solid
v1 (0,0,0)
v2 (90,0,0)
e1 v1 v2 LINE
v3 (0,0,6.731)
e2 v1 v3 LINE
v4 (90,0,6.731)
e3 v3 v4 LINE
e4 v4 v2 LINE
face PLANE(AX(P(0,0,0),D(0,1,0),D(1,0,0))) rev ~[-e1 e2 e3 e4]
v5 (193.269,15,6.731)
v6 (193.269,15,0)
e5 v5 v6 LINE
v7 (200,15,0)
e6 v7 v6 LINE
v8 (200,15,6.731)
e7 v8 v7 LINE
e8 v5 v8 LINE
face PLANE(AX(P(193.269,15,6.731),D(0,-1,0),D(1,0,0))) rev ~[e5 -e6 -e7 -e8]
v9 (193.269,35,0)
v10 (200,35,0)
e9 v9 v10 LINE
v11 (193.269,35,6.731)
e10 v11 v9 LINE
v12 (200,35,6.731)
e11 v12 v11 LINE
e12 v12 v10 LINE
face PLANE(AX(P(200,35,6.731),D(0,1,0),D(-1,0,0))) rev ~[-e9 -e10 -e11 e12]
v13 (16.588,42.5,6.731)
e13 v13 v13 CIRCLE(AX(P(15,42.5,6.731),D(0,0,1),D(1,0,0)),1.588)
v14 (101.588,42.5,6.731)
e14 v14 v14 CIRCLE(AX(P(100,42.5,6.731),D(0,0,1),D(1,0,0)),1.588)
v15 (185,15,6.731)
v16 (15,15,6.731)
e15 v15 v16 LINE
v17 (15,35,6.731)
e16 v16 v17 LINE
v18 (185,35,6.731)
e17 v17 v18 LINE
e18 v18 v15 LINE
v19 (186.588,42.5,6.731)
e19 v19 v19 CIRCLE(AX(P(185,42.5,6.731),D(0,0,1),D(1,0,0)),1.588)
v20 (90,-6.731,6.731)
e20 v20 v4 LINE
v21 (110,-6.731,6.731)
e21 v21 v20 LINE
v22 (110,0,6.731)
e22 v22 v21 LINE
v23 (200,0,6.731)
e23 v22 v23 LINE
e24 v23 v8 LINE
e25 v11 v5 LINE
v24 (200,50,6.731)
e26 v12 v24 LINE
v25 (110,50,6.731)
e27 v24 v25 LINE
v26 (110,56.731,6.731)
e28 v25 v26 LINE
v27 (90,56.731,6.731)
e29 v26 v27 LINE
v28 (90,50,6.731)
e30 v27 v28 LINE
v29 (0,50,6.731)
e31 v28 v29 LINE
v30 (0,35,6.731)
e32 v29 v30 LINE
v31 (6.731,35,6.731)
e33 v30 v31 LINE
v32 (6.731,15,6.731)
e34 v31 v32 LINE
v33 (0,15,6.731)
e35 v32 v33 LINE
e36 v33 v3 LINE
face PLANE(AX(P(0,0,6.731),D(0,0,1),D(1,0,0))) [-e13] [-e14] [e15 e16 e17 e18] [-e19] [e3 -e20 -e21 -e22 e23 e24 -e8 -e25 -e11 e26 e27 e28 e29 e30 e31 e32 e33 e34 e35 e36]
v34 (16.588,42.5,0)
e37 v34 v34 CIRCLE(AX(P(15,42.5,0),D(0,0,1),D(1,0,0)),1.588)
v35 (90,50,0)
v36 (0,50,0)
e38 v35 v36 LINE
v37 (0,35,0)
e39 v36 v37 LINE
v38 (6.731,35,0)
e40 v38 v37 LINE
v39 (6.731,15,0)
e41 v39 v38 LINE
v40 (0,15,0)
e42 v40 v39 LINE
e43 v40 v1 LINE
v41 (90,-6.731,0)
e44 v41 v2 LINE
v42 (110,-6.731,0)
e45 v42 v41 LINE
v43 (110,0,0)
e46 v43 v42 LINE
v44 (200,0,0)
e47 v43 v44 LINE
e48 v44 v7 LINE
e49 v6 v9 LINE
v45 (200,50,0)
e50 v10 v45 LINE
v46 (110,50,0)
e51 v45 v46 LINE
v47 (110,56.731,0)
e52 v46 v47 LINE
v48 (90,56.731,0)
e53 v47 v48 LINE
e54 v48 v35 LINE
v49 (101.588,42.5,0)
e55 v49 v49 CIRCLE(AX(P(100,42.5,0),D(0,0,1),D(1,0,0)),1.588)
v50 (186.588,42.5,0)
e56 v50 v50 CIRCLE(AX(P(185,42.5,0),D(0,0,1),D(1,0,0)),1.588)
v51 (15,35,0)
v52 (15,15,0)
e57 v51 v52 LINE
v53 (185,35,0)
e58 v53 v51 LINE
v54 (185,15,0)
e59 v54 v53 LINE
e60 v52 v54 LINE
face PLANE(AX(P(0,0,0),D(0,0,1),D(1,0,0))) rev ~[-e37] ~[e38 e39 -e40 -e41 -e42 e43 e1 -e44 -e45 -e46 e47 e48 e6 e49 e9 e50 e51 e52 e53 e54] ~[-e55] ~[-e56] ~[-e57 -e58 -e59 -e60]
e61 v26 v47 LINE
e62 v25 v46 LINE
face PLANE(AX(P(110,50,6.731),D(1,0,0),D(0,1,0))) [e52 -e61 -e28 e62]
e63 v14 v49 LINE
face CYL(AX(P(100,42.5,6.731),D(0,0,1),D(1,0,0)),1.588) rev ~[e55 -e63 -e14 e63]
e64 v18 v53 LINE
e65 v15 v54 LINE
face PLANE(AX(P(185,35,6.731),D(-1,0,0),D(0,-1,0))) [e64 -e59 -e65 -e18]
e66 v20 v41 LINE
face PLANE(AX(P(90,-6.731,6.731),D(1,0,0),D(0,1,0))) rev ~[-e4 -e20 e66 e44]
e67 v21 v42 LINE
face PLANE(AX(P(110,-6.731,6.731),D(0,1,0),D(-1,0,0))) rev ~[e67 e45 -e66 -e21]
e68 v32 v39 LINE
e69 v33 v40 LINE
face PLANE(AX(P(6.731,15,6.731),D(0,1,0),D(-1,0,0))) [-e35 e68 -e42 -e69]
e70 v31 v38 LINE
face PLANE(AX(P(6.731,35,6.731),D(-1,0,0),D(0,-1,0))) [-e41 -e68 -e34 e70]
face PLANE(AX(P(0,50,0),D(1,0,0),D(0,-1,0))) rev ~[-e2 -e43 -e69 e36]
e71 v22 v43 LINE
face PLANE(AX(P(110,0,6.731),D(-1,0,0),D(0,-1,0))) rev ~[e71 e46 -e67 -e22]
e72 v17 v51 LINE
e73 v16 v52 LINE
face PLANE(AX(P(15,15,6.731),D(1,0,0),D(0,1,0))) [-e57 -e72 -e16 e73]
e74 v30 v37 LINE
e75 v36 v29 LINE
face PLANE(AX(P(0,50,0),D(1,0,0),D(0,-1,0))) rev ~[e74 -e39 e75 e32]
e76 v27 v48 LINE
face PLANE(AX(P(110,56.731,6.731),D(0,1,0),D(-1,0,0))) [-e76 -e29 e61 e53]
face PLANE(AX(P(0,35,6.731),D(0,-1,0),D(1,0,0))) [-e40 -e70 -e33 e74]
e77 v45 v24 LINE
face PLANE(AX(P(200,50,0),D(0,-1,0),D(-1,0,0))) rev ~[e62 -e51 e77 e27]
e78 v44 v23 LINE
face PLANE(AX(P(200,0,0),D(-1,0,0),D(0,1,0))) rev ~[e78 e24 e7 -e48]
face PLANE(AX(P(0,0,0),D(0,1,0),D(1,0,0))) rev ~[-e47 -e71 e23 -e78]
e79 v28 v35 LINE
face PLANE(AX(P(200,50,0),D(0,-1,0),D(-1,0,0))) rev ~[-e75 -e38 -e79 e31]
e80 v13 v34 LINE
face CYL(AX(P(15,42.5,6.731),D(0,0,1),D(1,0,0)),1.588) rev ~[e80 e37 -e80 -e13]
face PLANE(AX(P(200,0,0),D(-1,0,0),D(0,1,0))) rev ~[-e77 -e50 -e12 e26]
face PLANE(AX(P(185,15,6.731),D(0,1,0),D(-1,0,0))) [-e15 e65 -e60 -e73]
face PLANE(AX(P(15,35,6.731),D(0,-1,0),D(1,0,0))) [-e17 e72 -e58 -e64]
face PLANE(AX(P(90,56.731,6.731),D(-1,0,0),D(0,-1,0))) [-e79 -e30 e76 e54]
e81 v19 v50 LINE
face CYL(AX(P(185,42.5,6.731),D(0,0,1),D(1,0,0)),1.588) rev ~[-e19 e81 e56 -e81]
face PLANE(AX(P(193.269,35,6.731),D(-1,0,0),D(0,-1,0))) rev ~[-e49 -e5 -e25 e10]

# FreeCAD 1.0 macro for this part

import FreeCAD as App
import Part
import Sketcher
from FreeCAD import Vector
Q = App.Units.Quantity


def add_polygon(sketch, points):
    """Adds a closed chain of lines whose ends are joined by coincident constraints."""
    first, n = sketch.GeometryCount, len(points)
    for a, b in zip(points, points[1:] + points[:1]):
        sketch.addGeometry(Part.LineSegment(App.Vector(*a, 0), App.Vector(*b, 0)), False)
    for i in range(n):
        sketch.addConstraint(Sketcher.Constraint("Coincident", first + i, 2, first + (i + 1) % n, 1))

doc = App.newDocument("Part")
body = doc.addObject("PartDesign::Body", "Body")

# Sketch on XY plane
sketch1 = body.newObject("Sketcher::SketchObject", "Sketch")
sketch1.AttachmentSupport = (doc.getObject("XY_Plane"), [""])
sketch1.MapMode = "FlatFace"
add_polygon(sketch1, [(0, 50), (0, 0), (200, 0), (200, 50)])  # lines 0-3
sketch1.addConstraint([
    Sketcher.Constraint("Vertical", 0),
    Sketcher.Constraint("Horizontal", 1),
    Sketcher.Constraint("Vertical", 2),
    Sketcher.Constraint("Horizontal", 3),
    Sketcher.Constraint("Coincident", 0, 2, -1, 1),
    Sketcher.Constraint("DistanceX", 1, 1, 1, 2, Q("200 mm")),
    Sketcher.Constraint("DistanceY", 0, 2, 0, 1, Q("50 mm")),
])
pad1 = body.newObject("PartDesign::Pad", "Pad")
pad1.Profile = sketch1
pad1.Length = 6.731

# Sketch on XY plane
sketch2 = body.newObject("Sketcher::SketchObject", "Sketch001")
sketch2.AttachmentSupport = (doc.getObject("XY_Plane"), [""])
sketch2.MapMode = "FlatFace"
sketch2.AttachmentOffset = App.Placement(Vector(0, 0, 6.731), App.Rotation())
add_polygon(sketch2, [(15, 15), (185, 15), (185, 35), (15, 35)])  # lines 0-3
sketch2.addGeometry(Part.Circle(Vector(15, 42.5, 0), Vector(0, 0, 1), 1.6), False)  # 4
sketch2.addGeometry(Part.Circle(Vector(185, 42.5, 0), Vector(0, 0, 1), 1.6), False)  # 5
sketch2.addGeometry(Part.Circle(Vector(100, 42.5, 0), Vector(0, 0, 1), 1.6), False)  # 6
sketch2.addConstraint([
    Sketcher.Constraint("Horizontal", 0),
    Sketcher.Constraint("Vertical", 1),
    Sketcher.Constraint("Horizontal", 2),
    Sketcher.Constraint("Vertical", 3),
    Sketcher.Constraint("Equal", 4, 5),
    Sketcher.Constraint("Equal", 5, 6),
    Sketcher.Constraint("Horizontal", 4, 3, 5, 3),
    Sketcher.Constraint("Horizontal", 5, 3, 6, 3),
    Sketcher.Constraint("Vertical", 5, 3, 0, 2),
    Sketcher.Constraint("Vertical", 4, 3, 2, 2),
    Sketcher.Constraint("DistanceY", 1, 1, 1, 2, Q("20 mm")),
    Sketcher.Constraint("Diameter", 4, Q("3.176 mm")),
    Sketcher.Constraint("DistanceX", -1, 1, 4, 3, Q("15 mm")),
    Sketcher.Constraint("DistanceY", -1, 1, 0, 2, Q("15 mm")),
    Sketcher.Constraint("DistanceY", 1, 2, 5, 3, Q("7.5 mm")),
    Sketcher.Constraint("DistanceX", 0, 1, 0, 2, Q("170 mm")),
    Sketcher.Constraint("DistanceX", -1, 1, 6, 3, Q("100 mm")),
])
pocket1 = body.newObject("PartDesign::Pocket", "Pocket")
pocket1.Profile = sketch2
pocket1.Type = "UpToFirst"

# Sketch on XY plane
sketch3 = body.newObject("Sketcher::SketchObject", "Sketch002")
sketch3.AttachmentSupport = (doc.getObject("XY_Plane"), [""])
sketch3.MapMode = "FlatFace"
sketch3.AttachmentOffset = App.Placement(Vector(0, 0, 6.731), App.Rotation())
add_polygon(sketch3, [(193, 15), (200, 15), (200, 35), (193, 35)])  # lines 0-3
add_polygon(sketch3, [(7, 35), (0, 35), (0, 15), (7, 15)])  # lines 4-7
sketch3.addConstraint([
    Sketcher.Constraint("Horizontal", 0),
    Sketcher.Constraint("Vertical", 1),
    Sketcher.Constraint("Horizontal", 2),
    Sketcher.Constraint("Vertical", 3),
    Sketcher.Constraint("Horizontal", 4),
    Sketcher.Constraint("Vertical", 5),
    Sketcher.Constraint("Horizontal", 6),
    Sketcher.Constraint("Vertical", 7),
    Sketcher.Constraint("PointOnObject", 4, 2, -2),
    Sketcher.Constraint("Horizontal", 2, 2, 4, 2),
    Sketcher.Constraint("Horizontal", 3, 2, 5, 2),
    Sketcher.Constraint("Equal", 2, 4),
    Sketcher.Constraint("DistanceY", 1, 1, 1, 2, Q("20 mm")),
    Sketcher.Constraint("DistanceX", 0, 1, 0, 2, Q("6.731 mm")),
    Sketcher.Constraint("DistanceX", -1, 1, 0, 2, Q("200 mm")),
    Sketcher.Constraint("DistanceY", -1, 1, 0, 2, Q("15 mm")),
])
pocket2 = body.newObject("PartDesign::Pocket", "Pocket001")
pocket2.Profile = sketch3
pocket2.Length = 6.731

# Sketch on XY plane
sketch4 = body.newObject("Sketcher::SketchObject", "Sketch003")
sketch4.AttachmentSupport = (doc.getObject("XY_Plane"), [""])
sketch4.MapMode = "FlatFace"
sketch4.AttachmentOffset = App.Placement(Vector(0, 0, 6.731), App.Rotation())
add_polygon(sketch4, [(110, 0), (90, 0), (90, -7), (110, -7)])  # lines 0-3
add_polygon(sketch4, [(90, 50), (110, 50), (110, 57), (90, 57)])  # lines 4-7
sketch4.addConstraint([
    Sketcher.Constraint("Horizontal", 0),
    Sketcher.Constraint("Vertical", 1),
    Sketcher.Constraint("Horizontal", 2),
    Sketcher.Constraint("Vertical", 3),
    Sketcher.Constraint("Horizontal", 4),
    Sketcher.Constraint("Vertical", 5),
    Sketcher.Constraint("Horizontal", 6),
    Sketcher.Constraint("Vertical", 7),
    Sketcher.Constraint("PointOnObject", 0, 2, -1),
    Sketcher.Constraint("Vertical", 3, 2, 4, 2),
    Sketcher.Constraint("Vertical", 1, 2, 6, 2),
    Sketcher.Constraint("Equal", 3, 5),
    Sketcher.Constraint("DistanceX", 0, 2, 0, 1, Q("20 mm")),
    Sketcher.Constraint("DistanceX", -1, 1, 0, 2, Q("90 mm")),
    Sketcher.Constraint("DistanceY", -1, 1, 4, 2, Q("50 mm")),
    Sketcher.Constraint("DistanceY", 1, 2, 1, 1, Q("6.731 mm")),
])
pad2 = body.newObject("PartDesign::Pad", "Pad001")
pad2.Profile = sketch4
pad2.Length = 6.731
pad2.Reversed = True

doc.recompute()
